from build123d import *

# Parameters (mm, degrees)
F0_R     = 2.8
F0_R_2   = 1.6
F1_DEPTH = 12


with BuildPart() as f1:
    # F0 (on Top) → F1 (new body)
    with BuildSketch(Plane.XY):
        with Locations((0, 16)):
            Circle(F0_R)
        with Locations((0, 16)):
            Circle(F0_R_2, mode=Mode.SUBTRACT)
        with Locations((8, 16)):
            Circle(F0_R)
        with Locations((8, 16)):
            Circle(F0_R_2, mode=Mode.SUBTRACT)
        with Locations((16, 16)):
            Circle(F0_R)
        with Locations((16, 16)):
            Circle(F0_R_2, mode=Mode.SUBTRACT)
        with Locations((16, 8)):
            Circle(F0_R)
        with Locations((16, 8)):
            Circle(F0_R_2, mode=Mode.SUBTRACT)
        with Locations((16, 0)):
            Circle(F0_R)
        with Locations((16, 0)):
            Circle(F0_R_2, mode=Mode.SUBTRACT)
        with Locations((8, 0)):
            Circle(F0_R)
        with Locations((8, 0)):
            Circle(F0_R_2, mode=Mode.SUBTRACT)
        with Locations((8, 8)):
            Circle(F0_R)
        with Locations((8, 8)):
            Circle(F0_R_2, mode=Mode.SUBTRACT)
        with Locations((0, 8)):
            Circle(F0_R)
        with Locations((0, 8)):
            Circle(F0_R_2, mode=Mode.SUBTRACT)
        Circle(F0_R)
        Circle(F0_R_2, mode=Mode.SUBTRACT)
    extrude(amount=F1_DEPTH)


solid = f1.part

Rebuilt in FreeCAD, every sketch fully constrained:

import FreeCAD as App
import Part
import Sketcher
from FreeCAD import Vector

doc = App.newDocument("Part")
body = doc.addObject("PartDesign::Body", "Body")
body.AllowCompound = True

sketch1 = doc.addObject("Sketcher::SketchObject", "Sketch")
body.addObject(sketch1)
sketch1.AttachmentSupport = (doc.XY_Plane, [""])
sketch1.MapMode = "FlatFace"
sketch1.addGeometry([
    Part.Circle(Vector(0, 16, 0), Vector(0, 0, 1), 2.8),
    Part.Circle(Vector(0, 16, 0), Vector(0, 0, 1), 1.6),
    Part.Circle(Vector(8, 16, 0), Vector(0, 0, 1), 2.8),
    Part.Circle(Vector(8, 16, 0), Vector(0, 0, 1), 1.6),
    Part.Circle(Vector(16, 16, 0), Vector(0, 0, 1), 2.8),
    Part.Circle(Vector(16, 16, 0), Vector(0, 0, 1), 1.6),
    Part.Circle(Vector(16, 8, 0), Vector(0, 0, 1), 2.8),
    Part.Circle(Vector(16, 8, 0), Vector(0, 0, 1), 1.6),
    Part.Circle(Vector(16, 0, 0), Vector(0, 0, 1), 2.8),
    Part.Circle(Vector(16, 0, 0), Vector(0, 0, 1), 1.6),
    Part.Circle(Vector(8, 0, 0), Vector(0, 0, 1), 2.8),
    Part.Circle(Vector(8, 0, 0), Vector(0, 0, 1), 1.6),
    Part.Circle(Vector(8, 8, 0), Vector(0, 0, 1), 2.8),
    Part.Circle(Vector(8, 8, 0), Vector(0, 0, 1), 1.6),
    Part.Circle(Vector(0, 8, 0), Vector(0, 0, 1), 2.8),
    Part.Circle(Vector(0, 8, 0), Vector(0, 0, 1), 1.6),
    Part.Circle(Vector(0, 0, 0), Vector(0, 0, 1), 2.8),
    Part.Circle(Vector(0, 0, 0), Vector(0, 0, 1), 1.6),
], False)
sketch1.addConstraint([
    Sketcher.Constraint("Coincident", 16, 3, -1, 1),
    Sketcher.Constraint("Coincident", 17, 3, -1, 1),
    Sketcher.Constraint("Coincident", 1, 3, 0, 3),
    Sketcher.Constraint("Coincident", 3, 3, 2, 3),
    Sketcher.Constraint("Coincident", 5, 3, 4, 3),
    Sketcher.Constraint("Coincident", 7, 3, 6, 3),
    Sketcher.Constraint("Coincident", 9, 3, 8, 3),
    Sketcher.Constraint("Coincident", 11, 3, 10, 3),
    Sketcher.Constraint("Coincident", 13, 3, 12, 3),
    Sketcher.Constraint("Coincident", 15, 3, 14, 3),
    Sketcher.Constraint("Equal", 0, 2),
    Sketcher.Constraint("Equal", 1, 3),
    Sketcher.Constraint("Equal", 2, 4),
    Sketcher.Constraint("Equal", 3, 5),
    Sketcher.Constraint("Equal", 4, 6),
    Sketcher.Constraint("Equal", 5, 7),
    Sketcher.Constraint("Equal", 6, 8),
    Sketcher.Constraint("Equal", 7, 9),
    Sketcher.Constraint("Equal", 8, 10),
    Sketcher.Constraint("Equal", 9, 11),
    Sketcher.Constraint("Equal", 10, 12),
    Sketcher.Constraint("Equal", 11, 13),
    Sketcher.Constraint("Equal", 12, 14),
    Sketcher.Constraint("Equal", 13, 15),
    Sketcher.Constraint("Equal", 14, 16),
    Sketcher.Constraint("Equal", 15, 17),
    Sketcher.Constraint("PointOnObject", 0, 3, -2),
    Sketcher.Constraint("PointOnObject", 8, 3, -1),
    Sketcher.Constraint("PointOnObject", 10, 3, -1),
    Sketcher.Constraint("PointOnObject", 14, 3, -2),
    Sketcher.Constraint("Horizontal", 1, 3, 2, 3),
    Sketcher.Constraint("Horizontal", 3, 3, 4, 3),
    Sketcher.Constraint("Horizontal", 7, 3, 12, 3),
    Sketcher.Constraint("Horizontal", 13, 3, 14, 3),
    Sketcher.Constraint("Vertical", 5, 3, 6, 3),
    Sketcher.Constraint("Vertical", 7, 3, 8, 3),
    Sketcher.Constraint("Vertical", 3, 3, 10, 3),
    Sketcher.Constraint("Vertical", 11, 3, 12, 3),
    Sketcher.Constraint("Diameter", 0, 5.6),
    Sketcher.Constraint("Diameter", 1, 3.2),
    Sketcher.Constraint("DistanceY", -1, 1, 0, 3, 16.0),
    Sketcher.Constraint("DistanceX", -1, 1, 2, 3, 8.0),
    Sketcher.Constraint("DistanceX", -1, 1, 4, 3, 16.0),
    Sketcher.Constraint("DistanceY", -1, 1, 6, 3, 8.0),
])
pad1 = doc.addObject("PartDesign::Pad", "Pad")
body.addObject(pad1)
pad1.Profile = sketch1
pad1.Length = 12

doc.recompute()
